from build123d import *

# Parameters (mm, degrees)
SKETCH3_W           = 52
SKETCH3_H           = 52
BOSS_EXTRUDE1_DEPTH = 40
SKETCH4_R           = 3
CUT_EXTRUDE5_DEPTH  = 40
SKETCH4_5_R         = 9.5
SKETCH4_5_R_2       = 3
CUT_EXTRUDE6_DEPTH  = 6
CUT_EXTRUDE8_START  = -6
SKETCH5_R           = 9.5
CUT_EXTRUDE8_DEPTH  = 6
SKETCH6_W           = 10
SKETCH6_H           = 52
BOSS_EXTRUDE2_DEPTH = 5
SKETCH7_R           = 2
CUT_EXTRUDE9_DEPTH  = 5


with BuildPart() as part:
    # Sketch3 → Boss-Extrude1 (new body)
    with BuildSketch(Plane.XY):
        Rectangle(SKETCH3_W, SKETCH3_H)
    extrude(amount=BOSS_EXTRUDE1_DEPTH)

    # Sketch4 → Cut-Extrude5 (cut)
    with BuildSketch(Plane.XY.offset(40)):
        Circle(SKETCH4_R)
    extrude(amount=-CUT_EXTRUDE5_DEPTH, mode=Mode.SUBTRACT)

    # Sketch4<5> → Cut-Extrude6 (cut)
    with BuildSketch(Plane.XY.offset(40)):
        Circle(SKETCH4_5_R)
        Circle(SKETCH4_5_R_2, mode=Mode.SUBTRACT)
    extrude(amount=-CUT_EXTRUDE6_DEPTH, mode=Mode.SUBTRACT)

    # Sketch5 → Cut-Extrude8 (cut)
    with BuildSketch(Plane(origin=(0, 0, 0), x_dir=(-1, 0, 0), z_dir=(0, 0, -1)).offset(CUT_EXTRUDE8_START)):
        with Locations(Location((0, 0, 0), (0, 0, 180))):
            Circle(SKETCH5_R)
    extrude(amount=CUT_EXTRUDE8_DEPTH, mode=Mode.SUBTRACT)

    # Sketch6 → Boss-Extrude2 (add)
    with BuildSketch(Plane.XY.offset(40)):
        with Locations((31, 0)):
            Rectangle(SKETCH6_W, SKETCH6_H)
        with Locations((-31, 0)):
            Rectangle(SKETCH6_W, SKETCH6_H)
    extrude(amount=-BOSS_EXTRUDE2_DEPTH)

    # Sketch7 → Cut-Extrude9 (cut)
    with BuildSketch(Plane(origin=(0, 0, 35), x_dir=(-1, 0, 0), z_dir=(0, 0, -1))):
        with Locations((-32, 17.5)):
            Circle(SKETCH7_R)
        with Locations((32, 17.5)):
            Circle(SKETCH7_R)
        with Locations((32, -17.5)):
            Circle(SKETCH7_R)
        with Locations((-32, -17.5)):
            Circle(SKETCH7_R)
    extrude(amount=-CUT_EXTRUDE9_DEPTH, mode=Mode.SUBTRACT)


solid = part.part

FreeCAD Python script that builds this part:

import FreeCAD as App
import Part
import Sketcher

V = App.Vector


def add_polygon(sketch, points):
    """Adds a closed chain of lines whose ends are joined by coincident constraints."""
    first, n = sketch.GeometryCount, len(points)
    for a, b in zip(points, points[1:] + points[:1]):
        sketch.addGeometry(Part.LineSegment(App.Vector(*a, 0), App.Vector(*b, 0)), False)
    for i in range(n):
        sketch.addConstraint(Sketcher.Constraint("Coincident", first + i, 2, first + (i + 1) % n, 1))

doc = App.newDocument("Part")
body = doc.addObject("PartDesign::Body", "Body")

# Sketch on XY plane
sketch1 = body.newObject("Sketcher::SketchObject", "Sketch")
sketch1.AttachmentSupport = (doc.getObject("XY_Plane"), [""])
sketch1.MapMode = "FlatFace"
add_polygon(sketch1, [(-26, 26), (-26, -26), (26, -26), (26, 26)])  # lines 0-3
sketch1.addConstraint([
    Sketcher.Constraint("Vertical", 0),
    Sketcher.Constraint("Horizontal", 1),
    Sketcher.Constraint("Vertical", 2),
    Sketcher.Constraint("Horizontal", 3),
    Sketcher.Constraint("Symmetric", 0, 2, 2, 2, -1, 1),
    Sketcher.Constraint("Equal", 3, 0),
    Sketcher.Constraint("DistanceX", 1, 1, 1, 2, 52.0),
])
pad1 = body.newObject("PartDesign::Pad", "Pad")
pad1.Profile = sketch1
pad1.Length = 40

# Sketch on XY plane
sketch2 = body.newObject("Sketcher::SketchObject", "Sketch001")
sketch2.AttachmentSupport = (doc.getObject("XY_Plane"), [""])
sketch2.MapMode = "FlatFace"
sketch2.AttachmentOffset = App.Placement(V(0, 0, 40), App.Rotation())
sketch2.addGeometry(Part.Circle(V(0, 0, 0), V(0, 0, 1), 3), False)
sketch2.addConstraint([
    Sketcher.Constraint("Coincident", 0, 3, -1, 1),
    Sketcher.Constraint("Diameter", 0, 6.0),
])
pocket1 = body.newObject("PartDesign::Pocket", "Pocket")
pocket1.Profile = sketch2
pocket1.Length = 40

# Sketch on XY plane
sketch3 = body.newObject("Sketcher::SketchObject", "Sketch002")
sketch3.AttachmentSupport = (doc.getObject("XY_Plane"), [""])
sketch3.MapMode = "FlatFace"
sketch3.AttachmentOffset = App.Placement(V(0, 0, 40), App.Rotation())
sketch3.addGeometry([
    Part.Circle(V(0, 0, 0), V(0, 0, 1), 9.5),
    Part.Circle(V(0, 0, 0), V(0, 0, 1), 3),
], False)
sketch3.addConstraint([
    Sketcher.Constraint("Coincident", 0, 3, -1, 1),
    Sketcher.Constraint("Coincident", 1, 3, -1, 1),
    Sketcher.Constraint("Diameter", 0, 19.0),
    Sketcher.Constraint("Diameter", 1, 6.0),
])
pocket2 = body.newObject("PartDesign::Pocket", "Pocket001")
pocket2.Profile = sketch3
pocket2.Length = 6

# Sketch on XY plane
sketch4 = body.newObject("Sketcher::SketchObject", "Sketch003")
sketch4.AttachmentSupport = (doc.getObject("XY_Plane"), [""])
sketch4.MapMode = "FlatFace"
sketch4.AttachmentOffset = App.Placement(V(0, 0, 6), App.Rotation())
sketch4.addGeometry(Part.Circle(V(0, 0, 0), V(0, 0, 1), 9.5), False)
sketch4.addConstraint([
    Sketcher.Constraint("Coincident", 0, 3, -1, 1),
    Sketcher.Constraint("Diameter", 0, 19.0),
])
pocket3 = body.newObject("PartDesign::Pocket", "Pocket002")
pocket3.Profile = sketch4
pocket3.Length = 6

# Sketch on XY plane
sketch5 = body.newObject("Sketcher::SketchObject", "Sketch004")
sketch5.AttachmentSupport = (doc.getObject("XY_Plane"), [""])
sketch5.MapMode = "FlatFace"
sketch5.AttachmentOffset = App.Placement(V(0, 0, 40), App.Rotation())
add_polygon(sketch5, [(26, 26), (26, -26), (36, -26), (36, 26)])  # lines 0-3
add_polygon(sketch5, [(-36, 26), (-36, -26), (-26, -26), (-26, 26)])  # lines 4-7
sketch5.addConstraint([
    Sketcher.Constraint("Vertical", 0),
    Sketcher.Constraint("Horizontal", 1),
    Sketcher.Constraint("Vertical", 2),
    Sketcher.Constraint("Horizontal", 3),
    Sketcher.Constraint("Vertical", 4),
    Sketcher.Constraint("Horizontal", 5),
    Sketcher.Constraint("Vertical", 6),
    Sketcher.Constraint("Horizontal", 7),
    Sketcher.Constraint("Symmetric", 2, 2, 4, 2, -1, 1),
    Sketcher.Constraint("Symmetric", 0, 2, 6, 2, -1, 1),
    Sketcher.Constraint("Horizontal", 1, 2, 4, 2),
    Sketcher.Constraint("DistanceX", 1, 1, 1, 2, 10.0),
    Sketcher.Constraint("DistanceY", 0, 2, 0, 1, 52.0),
    Sketcher.Constraint("DistanceX", -1, 1, 0, 2, 26.0),
])
pad2 = body.newObject("PartDesign::Pad", "Pad001")
pad2.Profile = sketch5
pad2.Length = 5
pad2.Reversed = True

# Sketch on XY plane
sketch6 = body.newObject("Sketcher::SketchObject", "Sketch005")
sketch6.AttachmentSupport = (doc.getObject("XY_Plane"), [""])
sketch6.MapMode = "FlatFace"
sketch6.AttachmentOffset = App.Placement(V(0, 0, 35), App.Rotation())
sketch6.addGeometry([
    Part.Circle(V(32, 17.5, 0), V(0, 0, 1), 2),
    Part.Circle(V(-32, 17.5, 0), V(0, 0, 1), 2),
    Part.Circle(V(-32, -17.5, 0), V(0, 0, 1), 2),
    Part.Circle(V(32, -17.5, 0), V(0, 0, 1), 2),
], False)
sketch6.addConstraint([
    Sketcher.Constraint("Equal", 0, 1),
    Sketcher.Constraint("Equal", 1, 2),
    Sketcher.Constraint("Equal", 2, 3),
    Sketcher.Constraint("Symmetric", 0, 3, 2, 3, -1, 1),
    Sketcher.Constraint("Symmetric", 1, 3, 3, 3, -1, 1),
    Sketcher.Constraint("Symmetric", 0, 3, 1, 3, -2),
    Sketcher.Constraint("Diameter", 0, 4.0),
    Sketcher.Constraint("DistanceX", -1, 1, 0, 3, 32.0),
    Sketcher.Constraint("DistanceY", 2, 3, 1, 3, 35.0),
])
pocket4 = body.newObject("PartDesign::Pocket", "Pocket003")
pocket4.Profile = sketch6
pocket4.Length = 5
pocket4.Reversed = True

doc.recompute()
